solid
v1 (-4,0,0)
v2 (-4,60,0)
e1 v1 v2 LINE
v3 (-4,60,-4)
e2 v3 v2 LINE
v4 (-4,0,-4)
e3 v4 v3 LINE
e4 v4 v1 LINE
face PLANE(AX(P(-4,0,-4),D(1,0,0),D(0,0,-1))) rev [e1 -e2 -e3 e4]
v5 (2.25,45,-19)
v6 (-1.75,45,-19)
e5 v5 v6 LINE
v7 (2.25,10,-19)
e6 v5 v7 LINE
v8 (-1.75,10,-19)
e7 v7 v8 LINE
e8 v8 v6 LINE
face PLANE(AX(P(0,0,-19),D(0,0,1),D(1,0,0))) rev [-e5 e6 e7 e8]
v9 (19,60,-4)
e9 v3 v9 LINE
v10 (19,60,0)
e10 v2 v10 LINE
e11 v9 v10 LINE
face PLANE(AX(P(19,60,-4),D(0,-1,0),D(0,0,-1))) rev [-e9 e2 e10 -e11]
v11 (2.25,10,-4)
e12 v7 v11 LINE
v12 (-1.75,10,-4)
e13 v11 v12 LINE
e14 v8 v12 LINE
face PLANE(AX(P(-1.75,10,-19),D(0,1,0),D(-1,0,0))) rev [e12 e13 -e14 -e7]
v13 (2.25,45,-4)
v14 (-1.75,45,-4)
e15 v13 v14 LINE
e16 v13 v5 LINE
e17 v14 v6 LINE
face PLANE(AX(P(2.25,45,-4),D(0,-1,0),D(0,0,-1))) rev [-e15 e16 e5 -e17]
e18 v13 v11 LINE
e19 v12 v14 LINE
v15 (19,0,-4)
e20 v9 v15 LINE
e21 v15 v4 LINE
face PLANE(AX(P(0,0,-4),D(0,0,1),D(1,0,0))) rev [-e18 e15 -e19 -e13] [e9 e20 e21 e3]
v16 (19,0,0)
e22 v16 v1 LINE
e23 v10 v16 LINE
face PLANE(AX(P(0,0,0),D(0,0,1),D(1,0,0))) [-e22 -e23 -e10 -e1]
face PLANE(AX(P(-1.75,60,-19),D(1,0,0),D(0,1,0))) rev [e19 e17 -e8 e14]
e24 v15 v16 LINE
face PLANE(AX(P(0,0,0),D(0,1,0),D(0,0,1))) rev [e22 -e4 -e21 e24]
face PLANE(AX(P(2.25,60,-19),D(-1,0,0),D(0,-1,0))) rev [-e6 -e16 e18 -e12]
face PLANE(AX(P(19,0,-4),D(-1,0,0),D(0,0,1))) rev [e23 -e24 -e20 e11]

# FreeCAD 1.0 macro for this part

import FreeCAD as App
import Part
import Sketcher
from FreeCAD import Vector


def add_polygon(sketch, points):
    """Adds a closed chain of lines whose ends are joined by coincident constraints."""
    first, n = sketch.GeometryCount, len(points)
    for a, b in zip(points, points[1:] + points[:1]):
        sketch.addGeometry(Part.LineSegment(App.Vector(*a, 0), App.Vector(*b, 0)), False)
    for i in range(n):
        sketch.addConstraint(Sketcher.Constraint("Coincident", first + i, 2, first + (i + 1) % n, 1))

doc = App.newDocument("Part")
params = doc.addObject("Spreadsheet::Sheet", "Params")
for row, (alias, value) in enumerate([
    ("sketch1_width", "15 mm"),
    ("sketch1_height", "80 mm"),
    ("pad1_length", "5 mm"),
    ("sketch2_width", "23 mm"),
    ("sketch2_height", "60 mm"),
    ("pad2_length", "4 mm"),
    ("sketch3_width", "4 mm"),
    ("sketch3_height", "50 mm"),
    ("pad3_length", "15 mm"),
    ("sketch4_width", "15 mm"),
    ("sketch4_height", "5 mm"),
    ("pocket1_length", "80 mm"),
    ("sketch5_width", "4 mm"),
    ("sketch5_height", "15 mm"),
    ("pocket2_length", "15 mm"),
], start=1):
    params.set(f"A{row}", alias)
    params.set(f"B{row}", "=" + value)
    params.setAlias(f"B{row}", alias)

body = doc.addObject("PartDesign::Body", "Body")

sketch1 = body.newObject("Sketcher::SketchObject", "Sketch")
sketch1.AttachmentSupport = (doc.getObject("XZ_Plane"), [""])
sketch1.MapMode = "FlatFace"
add_polygon(sketch1, [(0, 0), (0, 80), (15, 80), (15, 0)])
sketch1.addConstraint([
    Sketcher.Constraint("Vertical", 0),
    Sketcher.Constraint("Horizontal", 1),
    Sketcher.Constraint("Vertical", 2),
    Sketcher.Constraint("Horizontal", 3),
    Sketcher.Constraint("Coincident", 3, 2, -1, 1),
    Sketcher.Constraint("DistanceX", 1, 1, 1, 2, 15.0),
    Sketcher.Constraint("DistanceY", 0, 1, 0, 2, 80.0),
])
sketch1.setExpression("Constraints[9]", "Params.sketch1_width")
sketch1.setExpression("Constraints[10]", "Params.sketch1_height")
pad1 = body.newObject("PartDesign::Pad", "Pad")
pad1.Profile = sketch1
pad1.setExpression("Length", "Params.pad1_length")
pad1.Reversed = True

sketch2 = body.newObject("Sketcher::SketchObject", "Sketch001")
sketch2.AttachmentSupport = (doc.getObject("XY_Plane"), [""])
sketch2.MapMode = "FlatFace"
add_polygon(sketch2, [(19, 60), (19, 0), (-4, 0), (-4, 60)])
sketch2.addConstraint([
    Sketcher.Constraint("Vertical", 0),
    Sketcher.Constraint("Horizontal", 1),
    Sketcher.Constraint("Vertical", 2),
    Sketcher.Constraint("Horizontal", 3),
    Sketcher.Constraint("PointOnObject", 0, 2, -1),
    Sketcher.Constraint("DistanceX", 1, 2, 1, 1, 23.0),
    Sketcher.Constraint("DistanceY", 0, 2, 0, 1, 60.0),
    Sketcher.Constraint("DistanceX", -1, 1, 0, 2, 19.0),
])
sketch2.setExpression("Constraints[9]", "Params.sketch2_width")
sketch2.setExpression("Constraints[10]", "Params.sketch2_height")
pad2 = body.newObject("PartDesign::Pad", "Pad001")
pad2.Profile = sketch2
pad2.setExpression("Length", "Params.pad2_length")
pad2.Reversed = True

sketch3 = body.newObject("Sketcher::SketchObject", "Sketch002")
sketch3.AttachmentSupport = (doc.getObject("XY_Plane"), [""])
sketch3.MapMode = "FlatFace"
sketch3.AttachmentOffset = App.Placement(Vector(0, 0, -4), App.Rotation())
add_polygon(sketch3, [(2.2, 60), (2.2, 10), (-1.8, 10), (-1.8, 60)])
sketch3.addConstraint([
    Sketcher.Constraint("Vertical", 0),
    Sketcher.Constraint("Horizontal", 1),
    Sketcher.Constraint("Vertical", 2),
    Sketcher.Constraint("Horizontal", 3),
    Sketcher.Constraint("DistanceX", 1, 2, 1, 1, 4.0),
    Sketcher.Constraint("DistanceY", 0, 2, 0, 1, 50.0),
    Sketcher.Constraint("DistanceY", -1, 1, 0, 2, 10.0),
    Sketcher.Constraint("DistanceX", -1, 1, 0, 2, 2.25),
])
sketch3.setExpression("Constraints[8]", "Params.sketch3_width")
sketch3.setExpression("Constraints[9]", "Params.sketch3_height")
pad3 = body.newObject("PartDesign::Pad", "Pad002")
pad3.Profile = sketch3
pad3.setExpression("Length", "Params.pad3_length")
pad3.Reversed = True

sketch4 = body.newObject("Sketcher::SketchObject", "Sketch003")
sketch4.AttachmentSupport = (doc.getObject("XY_Plane"), [""])
sketch4.MapMode = "FlatFace"
sketch4.AttachmentOffset = App.Placement(Vector(0, 0, 80), App.Rotation())
add_polygon(sketch4, [(0, 5), (0, 0), (15, 0), (15, 5)])
sketch4.addConstraint([
    Sketcher.Constraint("Vertical", 0),
    Sketcher.Constraint("Horizontal", 1),
    Sketcher.Constraint("Vertical", 2),
    Sketcher.Constraint("Horizontal", 3),
    Sketcher.Constraint("Coincident", 0, 2, -1, 1),
    Sketcher.Constraint("DistanceX", 1, 1, 1, 2, 15.0),
    Sketcher.Constraint("DistanceY", 0, 2, 0, 1, 5.0),
])
sketch4.setExpression("Constraints[9]", "Params.sketch4_width")
sketch4.setExpression("Constraints[10]", "Params.sketch4_height")
pocket1 = body.newObject("PartDesign::Pocket", "Pocket")
pocket1.Profile = sketch4
pocket1.setExpression("Length", "Params.pocket1_length")

sketch5 = body.newObject("Sketcher::SketchObject", "Sketch004")
sketch5.AttachmentSupport = (doc.getObject("XY_Plane"), [""])
sketch5.MapMode = "FlatFace"
sketch5.AttachmentOffset = App.Placement(Vector(0, 0, -19), App.Rotation())
add_polygon(sketch5, [(2.2, 60), (2.2, 45), (-1.8, 45), (-1.8, 60)])
sketch5.addConstraint([
    Sketcher.Constraint("Vertical", 0),
    Sketcher.Constraint("Horizontal", 1),
    Sketcher.Constraint("Vertical", 2),
    Sketcher.Constraint("Horizontal", 3),
    Sketcher.Constraint("DistanceX", 1, 2, 1, 1, 4.0),
    Sketcher.Constraint("DistanceY", 0, 2, 0, 1, 15.0),
    Sketcher.Constraint("DistanceY", -1, 1, 0, 2, 45.0),
    Sketcher.Constraint("DistanceX", -1, 1, 0, 2, 2.25),
])
sketch5.setExpression("Constraints[8]", "Params.sketch5_width")
sketch5.setExpression("Constraints[9]", "Params.sketch5_height")
pocket2 = body.newObject("PartDesign::Pocket", "Pocket001")
pocket2.Profile = sketch5
pocket2.setExpression("Length", "Params.pocket2_length")
pocket2.Reversed = True

doc.recompute()
